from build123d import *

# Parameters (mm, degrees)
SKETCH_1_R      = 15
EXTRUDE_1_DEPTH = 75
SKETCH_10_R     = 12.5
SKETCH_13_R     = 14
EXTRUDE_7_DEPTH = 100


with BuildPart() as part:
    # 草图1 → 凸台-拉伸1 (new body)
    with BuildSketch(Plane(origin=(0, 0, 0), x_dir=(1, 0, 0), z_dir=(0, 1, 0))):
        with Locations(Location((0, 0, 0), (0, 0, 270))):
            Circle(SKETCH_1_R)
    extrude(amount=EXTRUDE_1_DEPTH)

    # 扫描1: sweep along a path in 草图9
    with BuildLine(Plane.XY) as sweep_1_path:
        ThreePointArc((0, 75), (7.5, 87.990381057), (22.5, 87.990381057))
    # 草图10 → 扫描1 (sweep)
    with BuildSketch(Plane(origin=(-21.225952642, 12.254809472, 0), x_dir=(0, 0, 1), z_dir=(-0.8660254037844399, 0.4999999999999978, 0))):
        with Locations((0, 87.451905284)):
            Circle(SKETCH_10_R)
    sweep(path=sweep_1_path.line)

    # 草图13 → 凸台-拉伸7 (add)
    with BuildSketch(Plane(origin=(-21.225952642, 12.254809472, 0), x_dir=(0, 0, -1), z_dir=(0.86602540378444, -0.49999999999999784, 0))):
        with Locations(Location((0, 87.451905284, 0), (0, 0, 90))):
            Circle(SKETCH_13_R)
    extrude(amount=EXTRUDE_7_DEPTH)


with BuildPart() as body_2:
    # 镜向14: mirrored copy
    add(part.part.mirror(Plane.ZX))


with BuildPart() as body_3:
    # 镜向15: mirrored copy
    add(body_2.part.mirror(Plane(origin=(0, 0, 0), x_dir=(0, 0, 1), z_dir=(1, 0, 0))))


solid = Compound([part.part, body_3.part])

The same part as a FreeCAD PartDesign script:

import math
import FreeCAD as App
import Part
import Sketcher

V = App.Vector

doc = App.newDocument("Part")
body = doc.addObject("PartDesign::Body", "Body")

# Sketch on XZ plane
sketch1 = body.newObject("Sketcher::SketchObject", "Sketch")
sketch1.AttachmentSupport = (doc.getObject("XZ_Plane"), [""])
sketch1.MapMode = "FlatFace"
sketch1.addGeometry(Part.Circle(V(0, 0, 0), V(0, 0, 1), 15), False)
sketch1.addConstraint([
    Sketcher.Constraint("Coincident", 0, 3, -1, 1),
    Sketcher.Constraint("Diameter", 0, 30.0),
])
pad1 = body.newObject("PartDesign::Pad", "Pad")
pad1.Profile = sketch1
pad1.Length = 75
pad1.Reversed = True

# Sketch on an angled plane
sketch2 = body.newObject("Sketcher::SketchObject", "Sketch001")
sketch2.Placement = App.Placement(V(-21.225953, 12.254809, 0), App.Rotation(V(0, 0, 1), V(0.5, 0.866025404, 0), V(-0.866025404, 0.5, 0), "ZXY"))
sketch2.addGeometry(Part.Circle(V(0, 87, 0), V(0, 0, 1), 12), False)
sketch2.addConstraint([
    Sketcher.Constraint("PointOnObject", 0, 3, -2),
    Sketcher.Constraint("Diameter", 0, 25.0),
    Sketcher.Constraint("DistanceY", -1, 1, 0, 3, 87.451905),
])

# Sketch on XY plane
sketch3 = body.newObject("Sketcher::SketchObject", "Sketch002")
sketch3.AttachmentSupport = (doc.getObject("XY_Plane"), [""])
sketch3.MapMode = "FlatFace"
sketch3.addGeometry(Part.ArcOfCircle(Part.Circle(V(15, 75, 0), V(0, 0, 1), 15), math.radians(60), math.radians(180)), False)
sketch3.addConstraint([
    Sketcher.Constraint("PointOnObject", 0, 2, -2),
    Sketcher.Constraint("Radius", 0, 15.0),
    Sketcher.Constraint("DistanceY", -1, 1, 0, 3, 75.0),
    Sketcher.Constraint("DistanceY", -1, 1, 0, 2, 75.0),
    Sketcher.Constraint("DistanceX", -1, 1, 0, 1, 22.5),
])
doc.recompute()

additivepipe = body.newObject("PartDesign::AdditivePipe", "AdditivePipe")
additivepipe.Profile = sketch2
additivepipe.Spine = (sketch3, ["Edge1"])

# Sketch on an angled plane
sketch4 = body.newObject("Sketcher::SketchObject", "Sketch003")
sketch4.Placement = App.Placement(V(-21.225953, 12.254809, 0), App.Rotation(V(0, 0, -1), V(0.5, 0.866025404, 0), V(0.866025404, -0.5, 0), "ZXY"))
sketch4.addGeometry(Part.Circle(V(0, 87, 0), V(0, 0, 1), 14), False)
sketch4.addConstraint([
    Sketcher.Constraint("PointOnObject", 0, 3, -2),
    Sketcher.Constraint("Diameter", 0, 28.0),
    Sketcher.Constraint("DistanceY", -1, 1, 0, 3, 87.451905),
])
pad2 = body.newObject("PartDesign::Pad", "Pad001")
pad2.Profile = sketch4
pad2.Length = 100
body2 = doc.addObject("PartDesign::Body", "Body001")
doc.recompute()

mirroring = doc.addObject("Part::Mirroring", "Mirroring")
mirroring.Source = body
mirroring.Base = V(0, 0, 0)
mirroring.Normal = V(0, 1, 0)
body2.BaseFeature = mirroring
doc.recompute()
body3 = doc.addObject("PartDesign::Body", "Body002")
doc.recompute()

mirroring2 = doc.addObject("Part::Mirroring", "Mirroring001")
mirroring2.Source = body2
mirroring2.Base = V(0, 0, 0)
mirroring2.Normal = V(1, 0, 0)
body3.BaseFeature = mirroring2
doc.recompute()
body2.Visibility = False
mirroring.Visibility = False
mirroring2.Visibility = False

doc.recompute()
